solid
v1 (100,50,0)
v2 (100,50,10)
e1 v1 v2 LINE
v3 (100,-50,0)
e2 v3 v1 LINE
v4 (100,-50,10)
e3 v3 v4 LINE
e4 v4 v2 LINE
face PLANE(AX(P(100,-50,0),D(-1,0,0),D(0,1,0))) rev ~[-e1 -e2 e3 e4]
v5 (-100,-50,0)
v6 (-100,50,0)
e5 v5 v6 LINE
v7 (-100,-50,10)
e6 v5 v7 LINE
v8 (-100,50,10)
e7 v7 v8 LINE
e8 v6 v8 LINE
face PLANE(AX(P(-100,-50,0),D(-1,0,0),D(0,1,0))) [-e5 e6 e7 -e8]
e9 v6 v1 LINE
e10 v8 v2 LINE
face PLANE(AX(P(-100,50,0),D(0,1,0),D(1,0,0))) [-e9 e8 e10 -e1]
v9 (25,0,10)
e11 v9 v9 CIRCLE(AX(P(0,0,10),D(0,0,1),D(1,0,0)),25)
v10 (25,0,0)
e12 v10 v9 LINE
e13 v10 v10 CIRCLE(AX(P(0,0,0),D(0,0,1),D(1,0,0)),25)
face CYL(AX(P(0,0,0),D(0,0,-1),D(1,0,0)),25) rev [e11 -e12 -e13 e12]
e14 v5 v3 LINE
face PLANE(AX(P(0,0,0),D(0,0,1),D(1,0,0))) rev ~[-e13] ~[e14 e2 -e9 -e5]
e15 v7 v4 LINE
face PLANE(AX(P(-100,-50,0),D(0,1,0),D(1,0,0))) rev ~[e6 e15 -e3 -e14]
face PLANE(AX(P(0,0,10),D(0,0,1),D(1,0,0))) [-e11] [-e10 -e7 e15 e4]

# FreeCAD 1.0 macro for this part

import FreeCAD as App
import Part
import Sketcher
from FreeCAD import Vector
Q = App.Units.Quantity

doc = App.newDocument("Part")
params = doc.addObject("Spreadsheet::Sheet", "Params")
for row, (alias, value) in enumerate([
    ("sketch1_diameter", "50 mm"),
    ("sketch1_width", "200 mm"),
    ("sketch1_height", "100 mm"),
    ("pad1_length", "10 mm"),
], start=1):
    params.set(f"A{row}", alias)
    params.set(f"B{row}", "=" + value)
    params.setAlias(f"B{row}", alias)

body = doc.addObject("PartDesign::Body", "Body")

sketch1 = body.newObject("Sketcher::SketchObject", "Sketch")
sketch1.AttachmentSupport = (doc.getObject("XY_Plane"), [""])
sketch1.MapMode = "FlatFace"
sketch1.addGeometry(Part.LineSegment(Vector(-100, 50, 0), Vector(-100, -50, 0)), False)
sketch1.addGeometry(Part.LineSegment(Vector(-100, -50, 0), Vector(100, -50, 0)), False)
sketch1.addGeometry(Part.LineSegment(Vector(100, -50, 0), Vector(100, 50, 0)), False)
sketch1.addGeometry(Part.LineSegment(Vector(100, 50, 0), Vector(-100, 50, 0)), False)
sketch1.addGeometry(Part.Circle(Vector(0, 0, 0), Vector(0, 0, 1), 25), False)
sketch1.addConstraint(Sketcher.Constraint("Coincident", 0, 2, 1, 1))
sketch1.addConstraint(Sketcher.Constraint("Coincident", 1, 2, 2, 1))
sketch1.addConstraint(Sketcher.Constraint("Coincident", 2, 2, 3, 1))
sketch1.addConstraint(Sketcher.Constraint("Coincident", 3, 2, 0, 1))
sketch1.addConstraint(Sketcher.Constraint("Vertical", 0))
sketch1.addConstraint(Sketcher.Constraint("Horizontal", 1))
sketch1.addConstraint(Sketcher.Constraint("Vertical", 2))
sketch1.addConstraint(Sketcher.Constraint("Horizontal", 3))
sketch1.addConstraint(Sketcher.Constraint("Coincident", 4, 3, -1, 1))
sketch1.addConstraint(Sketcher.Constraint("Symmetric", 0, 2, 2, 2, -1, 1))
sketch1.addConstraint(Sketcher.Constraint("Diameter", 4, Q("50 mm")))
sketch1.addConstraint(Sketcher.Constraint("DistanceX", 1, 1, 1, 2, Q("200 mm")))
sketch1.addConstraint(Sketcher.Constraint("DistanceY", 0, 2, 0, 1, Q("100 mm")))
sketch1.setExpression("Constraints[10]", "Params.sketch1_diameter")
sketch1.setExpression("Constraints[11]", "Params.sketch1_width")
sketch1.setExpression("Constraints[12]", "Params.sketch1_height")
pad1 = body.newObject("PartDesign::Pad", "Pad")
pad1.Profile = sketch1
pad1.setExpression("Length", "Params.pad1_length")

doc.recompute()
